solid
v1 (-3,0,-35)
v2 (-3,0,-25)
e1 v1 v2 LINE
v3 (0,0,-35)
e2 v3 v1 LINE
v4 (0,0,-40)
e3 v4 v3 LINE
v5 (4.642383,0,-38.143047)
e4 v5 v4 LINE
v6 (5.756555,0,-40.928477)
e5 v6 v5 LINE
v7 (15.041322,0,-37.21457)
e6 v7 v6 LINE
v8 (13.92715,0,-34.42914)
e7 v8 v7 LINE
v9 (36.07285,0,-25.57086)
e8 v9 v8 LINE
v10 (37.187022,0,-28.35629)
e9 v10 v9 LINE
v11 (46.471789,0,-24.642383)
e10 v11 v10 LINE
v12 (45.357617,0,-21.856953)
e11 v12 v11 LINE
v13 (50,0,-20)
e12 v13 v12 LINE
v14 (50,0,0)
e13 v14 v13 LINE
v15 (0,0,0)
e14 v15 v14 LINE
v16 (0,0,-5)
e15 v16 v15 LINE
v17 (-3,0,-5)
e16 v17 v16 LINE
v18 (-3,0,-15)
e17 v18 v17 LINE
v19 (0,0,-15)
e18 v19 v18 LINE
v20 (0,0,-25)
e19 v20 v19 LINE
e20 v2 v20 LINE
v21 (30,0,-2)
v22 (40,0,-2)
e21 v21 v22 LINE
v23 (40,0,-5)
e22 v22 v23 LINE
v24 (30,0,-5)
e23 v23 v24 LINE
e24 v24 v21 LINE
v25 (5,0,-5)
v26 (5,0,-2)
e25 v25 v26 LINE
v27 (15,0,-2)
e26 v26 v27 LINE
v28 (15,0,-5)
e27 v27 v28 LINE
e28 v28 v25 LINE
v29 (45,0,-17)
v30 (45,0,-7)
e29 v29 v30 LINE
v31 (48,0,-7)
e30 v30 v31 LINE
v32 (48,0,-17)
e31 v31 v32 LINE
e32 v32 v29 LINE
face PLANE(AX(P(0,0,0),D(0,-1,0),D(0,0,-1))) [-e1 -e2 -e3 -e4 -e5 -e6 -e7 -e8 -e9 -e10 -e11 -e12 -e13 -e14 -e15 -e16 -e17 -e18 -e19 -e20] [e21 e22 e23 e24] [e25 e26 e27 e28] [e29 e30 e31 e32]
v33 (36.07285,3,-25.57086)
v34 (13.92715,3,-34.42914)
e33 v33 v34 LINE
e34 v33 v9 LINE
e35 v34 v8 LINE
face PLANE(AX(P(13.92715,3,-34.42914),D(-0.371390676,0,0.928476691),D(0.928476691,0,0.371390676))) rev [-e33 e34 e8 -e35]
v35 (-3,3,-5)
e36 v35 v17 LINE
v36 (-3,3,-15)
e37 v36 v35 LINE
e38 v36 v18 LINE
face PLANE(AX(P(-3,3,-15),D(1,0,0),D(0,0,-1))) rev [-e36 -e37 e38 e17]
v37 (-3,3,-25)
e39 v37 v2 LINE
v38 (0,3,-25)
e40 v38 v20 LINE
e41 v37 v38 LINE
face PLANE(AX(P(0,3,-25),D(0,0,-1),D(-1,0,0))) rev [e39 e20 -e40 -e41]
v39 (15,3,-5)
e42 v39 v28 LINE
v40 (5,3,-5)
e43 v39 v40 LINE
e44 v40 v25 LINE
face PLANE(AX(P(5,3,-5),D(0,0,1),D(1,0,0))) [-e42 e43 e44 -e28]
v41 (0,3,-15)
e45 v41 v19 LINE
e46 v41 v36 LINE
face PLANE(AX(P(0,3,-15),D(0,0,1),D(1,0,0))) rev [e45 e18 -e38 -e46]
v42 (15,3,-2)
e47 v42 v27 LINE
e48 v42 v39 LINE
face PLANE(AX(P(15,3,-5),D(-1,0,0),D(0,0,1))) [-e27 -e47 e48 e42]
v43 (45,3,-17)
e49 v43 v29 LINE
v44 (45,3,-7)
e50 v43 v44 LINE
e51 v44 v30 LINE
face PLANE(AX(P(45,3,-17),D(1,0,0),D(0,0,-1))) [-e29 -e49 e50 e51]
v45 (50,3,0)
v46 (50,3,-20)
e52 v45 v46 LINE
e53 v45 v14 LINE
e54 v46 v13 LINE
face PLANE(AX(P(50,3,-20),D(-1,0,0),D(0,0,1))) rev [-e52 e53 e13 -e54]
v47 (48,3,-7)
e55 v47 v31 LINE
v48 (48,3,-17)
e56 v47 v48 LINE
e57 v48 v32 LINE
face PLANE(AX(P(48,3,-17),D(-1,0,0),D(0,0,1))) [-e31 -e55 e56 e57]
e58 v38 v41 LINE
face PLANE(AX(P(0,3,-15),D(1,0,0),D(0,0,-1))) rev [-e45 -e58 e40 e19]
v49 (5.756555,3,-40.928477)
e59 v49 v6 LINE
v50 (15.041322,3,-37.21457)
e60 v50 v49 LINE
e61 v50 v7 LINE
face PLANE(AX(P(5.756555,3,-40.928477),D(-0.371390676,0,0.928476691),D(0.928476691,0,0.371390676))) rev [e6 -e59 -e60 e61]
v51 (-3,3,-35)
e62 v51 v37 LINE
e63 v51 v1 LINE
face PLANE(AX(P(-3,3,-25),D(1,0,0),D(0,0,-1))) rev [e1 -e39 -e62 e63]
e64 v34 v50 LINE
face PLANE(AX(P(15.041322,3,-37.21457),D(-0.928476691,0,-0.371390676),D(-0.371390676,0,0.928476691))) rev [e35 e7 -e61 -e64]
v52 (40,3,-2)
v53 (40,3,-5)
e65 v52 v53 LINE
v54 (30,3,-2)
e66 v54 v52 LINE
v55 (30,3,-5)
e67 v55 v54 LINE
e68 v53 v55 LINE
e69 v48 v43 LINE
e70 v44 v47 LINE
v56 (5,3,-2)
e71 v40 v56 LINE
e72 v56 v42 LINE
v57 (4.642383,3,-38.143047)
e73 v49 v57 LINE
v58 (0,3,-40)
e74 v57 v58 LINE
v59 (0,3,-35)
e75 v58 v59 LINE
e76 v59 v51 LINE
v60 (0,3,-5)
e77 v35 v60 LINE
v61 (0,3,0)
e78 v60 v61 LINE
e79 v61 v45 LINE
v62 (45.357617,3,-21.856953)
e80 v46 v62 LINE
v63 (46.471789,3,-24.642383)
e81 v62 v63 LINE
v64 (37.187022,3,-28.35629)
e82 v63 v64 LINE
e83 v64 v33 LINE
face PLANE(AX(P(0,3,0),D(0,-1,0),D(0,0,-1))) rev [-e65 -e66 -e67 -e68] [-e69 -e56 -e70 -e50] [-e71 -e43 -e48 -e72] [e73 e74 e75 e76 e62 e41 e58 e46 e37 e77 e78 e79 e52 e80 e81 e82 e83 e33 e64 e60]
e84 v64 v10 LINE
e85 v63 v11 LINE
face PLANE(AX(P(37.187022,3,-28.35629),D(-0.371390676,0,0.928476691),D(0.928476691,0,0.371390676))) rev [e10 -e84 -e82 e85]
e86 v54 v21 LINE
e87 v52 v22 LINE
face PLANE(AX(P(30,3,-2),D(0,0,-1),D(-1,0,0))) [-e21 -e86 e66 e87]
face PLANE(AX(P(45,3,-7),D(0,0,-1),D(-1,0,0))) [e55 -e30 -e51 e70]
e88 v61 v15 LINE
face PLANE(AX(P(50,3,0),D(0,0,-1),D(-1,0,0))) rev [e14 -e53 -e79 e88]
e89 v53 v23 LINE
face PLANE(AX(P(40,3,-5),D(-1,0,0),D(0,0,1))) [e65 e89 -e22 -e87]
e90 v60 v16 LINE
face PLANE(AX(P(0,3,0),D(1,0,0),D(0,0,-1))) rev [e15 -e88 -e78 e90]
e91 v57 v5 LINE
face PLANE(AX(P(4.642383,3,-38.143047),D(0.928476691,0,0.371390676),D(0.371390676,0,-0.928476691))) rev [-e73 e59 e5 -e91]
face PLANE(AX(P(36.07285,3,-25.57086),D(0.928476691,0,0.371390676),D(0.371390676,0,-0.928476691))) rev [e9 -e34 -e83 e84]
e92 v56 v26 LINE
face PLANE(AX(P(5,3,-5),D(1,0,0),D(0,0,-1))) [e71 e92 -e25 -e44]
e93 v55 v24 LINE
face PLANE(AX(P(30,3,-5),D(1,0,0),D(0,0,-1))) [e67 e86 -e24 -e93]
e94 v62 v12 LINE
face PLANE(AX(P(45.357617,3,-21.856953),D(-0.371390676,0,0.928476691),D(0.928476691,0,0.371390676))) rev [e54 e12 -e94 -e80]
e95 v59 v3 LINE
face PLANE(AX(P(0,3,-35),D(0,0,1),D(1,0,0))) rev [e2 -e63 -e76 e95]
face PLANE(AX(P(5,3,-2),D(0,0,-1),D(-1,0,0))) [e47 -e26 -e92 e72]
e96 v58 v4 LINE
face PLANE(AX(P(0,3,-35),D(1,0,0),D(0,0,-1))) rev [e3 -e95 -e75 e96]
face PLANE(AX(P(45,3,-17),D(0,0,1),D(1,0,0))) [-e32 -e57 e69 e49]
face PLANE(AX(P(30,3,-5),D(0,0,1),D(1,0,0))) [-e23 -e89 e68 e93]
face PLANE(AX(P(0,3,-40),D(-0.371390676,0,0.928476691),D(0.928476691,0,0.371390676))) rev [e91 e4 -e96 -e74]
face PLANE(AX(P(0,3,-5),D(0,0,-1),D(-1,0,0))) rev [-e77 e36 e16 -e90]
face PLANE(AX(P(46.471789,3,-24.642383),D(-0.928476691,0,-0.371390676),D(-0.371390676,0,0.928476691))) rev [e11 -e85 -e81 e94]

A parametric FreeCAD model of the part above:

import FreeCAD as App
import Part
import Sketcher

V = App.Vector


def add_polygon(sketch, points):
    """Adds a closed chain of lines whose ends are joined by coincident constraints."""
    first, n = sketch.GeometryCount, len(points)
    for a, b in zip(points, points[1:] + points[:1]):
        sketch.addGeometry(Part.LineSegment(App.Vector(*a, 0), App.Vector(*b, 0)), False)
    for i in range(n):
        sketch.addConstraint(Sketcher.Constraint("Coincident", first + i, 2, first + (i + 1) % n, 1))

doc = App.newDocument("Part")
params = doc.addObject("Spreadsheet::Sheet", "Params")
for row, (alias, value) in enumerate([
    ("sketch1_width", "50 mm"),
    ("sketch1_width2", "3 mm"),
    ("sketch1_width3", "10 mm"),
    ("sketch1_height", "5 mm"),
    ("sketch1_height2", "20 mm"),
    ("pad1_length", "3 mm"),
], start=1):
    params.set(f"A{row}", alias)
    params.set(f"B{row}", "=" + value)
    params.setAlias(f"B{row}", alias)

body = doc.addObject("PartDesign::Body", "Body")

# Sketch on XZ plane
sketch1 = body.newObject("Sketcher::SketchObject", "Sketch")
sketch1.AttachmentSupport = (doc.getObject("XZ_Plane"), [""])
sketch1.MapMode = "FlatFace"
add_polygon(sketch1, [(0, -5), (0, 0), (50, 0), (50, -20), (45.4, -21.9), (46.5, -24.6), (37.2, -28.4), (36.1, -25.6), (13.9, -34.4), (15, -37.2), (5.8, -40.9), (4.6, -38.1), (0, -40), (0, -35), (-3, -35), (-3, -25), (0, -25), (0, -15), (-3, -15), (-3, -5)])  # lines 0-19
add_polygon(sketch1, [(30, -2), (30, -5), (40, -5), (40, -2)])  # lines 20-23
add_polygon(sketch1, [(5, -2), (5, -5), (15, -5), (15, -2)])  # lines 24-27
add_polygon(sketch1, [(45, -7), (45, -17), (48, -17), (48, -7)])  # lines 28-31
sketch1.addConstraint([
    Sketcher.Constraint("Vertical", 0),
    Sketcher.Constraint("Horizontal", 1),
    Sketcher.Constraint("Vertical", 2),
    Sketcher.Constraint("Vertical", 12),
    Sketcher.Constraint("Horizontal", 13),
    Sketcher.Constraint("Vertical", 14),
    Sketcher.Constraint("Horizontal", 15),
    Sketcher.Constraint("Vertical", 16),
    Sketcher.Constraint("Horizontal", 17),
    Sketcher.Constraint("Vertical", 18),
    Sketcher.Constraint("Horizontal", 19),
    Sketcher.Constraint("Vertical", 20),
    Sketcher.Constraint("Horizontal", 21),
    Sketcher.Constraint("Vertical", 22),
    Sketcher.Constraint("Horizontal", 23),
    Sketcher.Constraint("Vertical", 24),
    Sketcher.Constraint("Horizontal", 25),
    Sketcher.Constraint("Vertical", 26),
    Sketcher.Constraint("Horizontal", 27),
    Sketcher.Constraint("Vertical", 28),
    Sketcher.Constraint("Horizontal", 29),
    Sketcher.Constraint("Vertical", 30),
    Sketcher.Constraint("Horizontal", 31),
    Sketcher.Constraint("Coincident", 0, 2, -1, 1),
    Sketcher.Constraint("PointOnObject", 11, 2, -2),
    Sketcher.Constraint("PointOnObject", 15, 2, -2),
    Sketcher.Constraint("Perpendicular", 3, 4),
    Sketcher.Constraint("Perpendicular", 4, 5),
    Sketcher.Constraint("Perpendicular", 5, 6),
    Sketcher.Constraint("Perpendicular", 6, 7),
    Sketcher.Constraint("Perpendicular", 7, 8),
    Sketcher.Constraint("Perpendicular", 8, 9),
    Sketcher.Constraint("Perpendicular", 9, 10),
    Sketcher.Constraint("Perpendicular", 10, 11),
    Sketcher.Constraint("Horizontal", 19, 2, 20, 2),
    Sketcher.Constraint("Horizontal", 21, 2, 24, 2),
    Sketcher.Constraint("Horizontal", 23, 2, 26, 2),
    Sketcher.Constraint("Vertical", 14, 2, 17, 2),
    Sketcher.Constraint("Equal", 23, 25),
    Sketcher.Constraint("Equal", 19, 29),
    Sketcher.Constraint("Equal", 0, 12),
    Sketcher.Constraint("Equal", 27, 14),
    Sketcher.Constraint("Equal", 14, 16),
    Sketcher.Constraint("Equal", 16, 18),
    Sketcher.Constraint("Equal", 31, 20),
    Sketcher.Constraint("Equal", 18, 28),
    Sketcher.Constraint("Equal", 4, 6),
    Sketcher.Constraint("Equal", 6, 8),
    Sketcher.Constraint("Equal", 5, 9),
    Sketcher.Constraint("Equal", 8, 10),
    Sketcher.Constraint("Equal", 3, 11),
    Sketcher.Constraint("DistanceX", 1, 1, 1, 2, 50.0),
    Sketcher.Constraint("DistanceX", 13, 2, 13, 1, 3.0),
    Sketcher.Constraint("DistanceX", 21, 1, 21, 2, 10.0),
    Sketcher.Constraint("DistanceY", 0, 1, 0, 2, 5.0),
    Sketcher.Constraint("DistanceY", 2, 2, 2, 1, 20.0),
    Sketcher.Constraint("Distance", 3, 5.0),
    Sketcher.Constraint("Distance", 4, 3.0),
    Sketcher.Constraint("Distance", 5, 10.0),
    Sketcher.Constraint("DistanceX", -1, 1, 20, 2, 30.0),
    Sketcher.Constraint("DistanceX", -1, 1, 24, 2, 5.0),
    Sketcher.Constraint("DistanceX", -1, 1, 28, 2, 45.0),
    Sketcher.Constraint("DistanceY", 28, 2, -1, 1, 17.0),
])
sketch1.setExpression("Constraints[83]", "Params.sketch1_width")
sketch1.setExpression("Constraints[84]", "Params.sketch1_width2")
sketch1.setExpression("Constraints[85]", "Params.sketch1_width3")
sketch1.setExpression("Constraints[86]", "Params.sketch1_height")
sketch1.setExpression("Constraints[87]", "Params.sketch1_height2")
pad1 = body.newObject("PartDesign::Pad", "Pad")
pad1.Profile = sketch1
pad1.setExpression("Length", "Params.pad1_length")
pad1.Reversed = True

doc.recompute()
